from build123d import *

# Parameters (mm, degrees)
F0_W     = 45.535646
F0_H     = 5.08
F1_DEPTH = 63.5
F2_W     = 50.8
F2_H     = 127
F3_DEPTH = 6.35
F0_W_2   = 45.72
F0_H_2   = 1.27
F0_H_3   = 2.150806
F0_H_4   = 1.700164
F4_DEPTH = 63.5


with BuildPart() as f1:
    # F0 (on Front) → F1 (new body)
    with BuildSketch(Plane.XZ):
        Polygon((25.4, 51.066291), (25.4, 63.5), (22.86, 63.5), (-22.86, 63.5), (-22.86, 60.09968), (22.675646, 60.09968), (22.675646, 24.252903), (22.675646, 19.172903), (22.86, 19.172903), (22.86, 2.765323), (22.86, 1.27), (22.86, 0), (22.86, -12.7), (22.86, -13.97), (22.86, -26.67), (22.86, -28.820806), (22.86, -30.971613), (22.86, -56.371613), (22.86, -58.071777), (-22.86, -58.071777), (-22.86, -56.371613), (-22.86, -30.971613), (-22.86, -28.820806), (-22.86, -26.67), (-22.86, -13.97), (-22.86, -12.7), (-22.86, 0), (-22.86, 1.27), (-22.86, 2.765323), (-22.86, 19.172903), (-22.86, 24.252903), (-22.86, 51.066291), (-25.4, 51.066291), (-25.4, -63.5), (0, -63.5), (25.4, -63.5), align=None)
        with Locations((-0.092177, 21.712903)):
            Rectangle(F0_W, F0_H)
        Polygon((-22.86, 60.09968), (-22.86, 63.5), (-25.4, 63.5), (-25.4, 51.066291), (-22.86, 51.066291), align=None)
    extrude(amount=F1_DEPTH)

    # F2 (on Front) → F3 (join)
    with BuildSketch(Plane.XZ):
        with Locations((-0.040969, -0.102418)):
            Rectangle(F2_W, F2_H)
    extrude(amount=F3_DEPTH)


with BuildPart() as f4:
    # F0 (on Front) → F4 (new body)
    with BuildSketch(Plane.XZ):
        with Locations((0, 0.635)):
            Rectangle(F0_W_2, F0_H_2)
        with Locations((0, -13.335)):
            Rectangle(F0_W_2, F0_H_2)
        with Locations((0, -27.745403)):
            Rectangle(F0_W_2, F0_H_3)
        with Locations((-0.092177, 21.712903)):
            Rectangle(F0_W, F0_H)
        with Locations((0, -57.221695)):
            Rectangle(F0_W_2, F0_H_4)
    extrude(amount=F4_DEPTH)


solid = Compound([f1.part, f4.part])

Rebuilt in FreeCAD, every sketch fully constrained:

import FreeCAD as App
import Part
import Sketcher
Q = App.Units.Quantity

doc = App.newDocument("Part")
body = doc.addObject("PartDesign::Body", "Body")

# Sketch on XZ plane
sketch1 = doc.addObject("Sketcher::SketchObject", "Sketch")
body.addObject(sketch1)
sketch1.AttachmentSupport = (doc.XZ_Plane, [""])
sketch1.MapMode = "FlatFace"
sketch1.addGeometry([
    Part.LineSegment(App.Vector(25, 64, 0), App.Vector(-25, 64, 0)),  # 0
    Part.LineSegment(App.Vector(-25, 64, 0), App.Vector(-25, -64, 0)),  # 1
    Part.LineSegment(App.Vector(-25, -64, 0), App.Vector(25, -64, 0)),  # 2
    Part.LineSegment(App.Vector(25, -64, 0), App.Vector(25, 64, 0)),  # 3
    Part.LineSegment(App.Vector(-23, 60, 0), App.Vector(23, 60, 0)),  # 4
    Part.LineSegment(App.Vector(23, 60, 0), App.Vector(23, 24, 0)),  # 5
    Part.LineSegment(App.Vector(23, 24, 0), App.Vector(-23, 24, 0)),  # 6
    Part.LineSegment(App.Vector(-23, 24, 0), App.Vector(-23, 60, 0)),  # 7
    Part.LineSegment(App.Vector(23, 19, 0), App.Vector(23, -58, 0)),  # 8
    Part.LineSegment(App.Vector(23, -58, 0), App.Vector(-23, -58, 0)),  # 9
    Part.LineSegment(App.Vector(-23, -58, 0), App.Vector(-23, 19, 0)),  # 10
    Part.LineSegment(App.Vector(-23, 19, 0), App.Vector(23, 19, 0)),  # 11
], False)
sketch1.addConstraint([
    Sketcher.Constraint("Coincident", 0, 2, 1, 1),
    Sketcher.Constraint("Coincident", 1, 2, 2, 1),
    Sketcher.Constraint("Coincident", 2, 2, 3, 1),
    Sketcher.Constraint("Coincident", 3, 2, 0, 1),
    Sketcher.Constraint("Coincident", 4, 2, 5, 1),
    Sketcher.Constraint("Coincident", 5, 2, 6, 1),
    Sketcher.Constraint("Coincident", 6, 2, 7, 1),
    Sketcher.Constraint("Coincident", 7, 2, 4, 1),
    Sketcher.Constraint("Coincident", 8, 2, 9, 1),
    Sketcher.Constraint("Coincident", 9, 2, 10, 1),
    Sketcher.Constraint("Coincident", 10, 2, 11, 1),
    Sketcher.Constraint("Coincident", 11, 2, 8, 1),
    Sketcher.Constraint("Horizontal", 0),
    Sketcher.Constraint("Vertical", 1),
    Sketcher.Constraint("Horizontal", 2),
    Sketcher.Constraint("Vertical", 3),
    Sketcher.Constraint("Horizontal", 4),
    Sketcher.Constraint("Vertical", 5),
    Sketcher.Constraint("Horizontal", 6),
    Sketcher.Constraint("Vertical", 7),
    Sketcher.Constraint("Vertical", 8),
    Sketcher.Constraint("Horizontal", 9),
    Sketcher.Constraint("Vertical", 10),
    Sketcher.Constraint("Horizontal", 11),
    Sketcher.Constraint("Symmetric", 0, 2, 2, 2, -1, 1),
    Sketcher.Constraint("Vertical", 7, 2, 9, 2),
    Sketcher.Constraint("DistanceX", 0, 2, 0, 1, Q("2 in")),
    Sketcher.Constraint("DistanceY", 1, 2, 1, 1, Q("5 in")),
    Sketcher.Constraint("DistanceX", 9, 2, 9, 1, Q("1.8 in")),
    Sketcher.Constraint("DistanceX", 6, 2, -1, 1, Q("0.9 in")),
    Sketcher.Constraint("DistanceY", 10, 2, 6, 2, Q("0.2 in")),
    Sketcher.Constraint("DistanceY", 8, 2, 8, 1, Q("77.24468 mm")),
    Sketcher.Constraint("DistanceX", 4, 1, 4, 2, Q("45.535646 mm")),
    Sketcher.Constraint("DistanceY", 5, 2, 5, 1, Q("35.846777 mm")),
    Sketcher.Constraint("DistanceY", -1, 1, 4, 2, Q("60.09968 mm")),
])
pad1 = doc.addObject("PartDesign::Pad", "Pad")
body.addObject(pad1)
pad1.Profile = sketch1
pad1.Length = Q("2.5 in")

# Sketch on XZ plane
sketch2 = doc.addObject("Sketcher::SketchObject", "Sketch001")
body.addObject(sketch2)
sketch2.AttachmentSupport = (doc.XZ_Plane, [""])
sketch2.MapMode = "FlatFace"
sketch2.addGeometry([
    Part.LineSegment(App.Vector(-25, 63, 0), App.Vector(-25, -64, 0)),
    Part.LineSegment(App.Vector(-25, -64, 0), App.Vector(25, -64, 0)),
    Part.LineSegment(App.Vector(25, -64, 0), App.Vector(25, 63, 0)),
    Part.LineSegment(App.Vector(25, 63, 0), App.Vector(-25, 63, 0)),
], False)
sketch2.addConstraint([
    Sketcher.Constraint("Coincident", 0, 2, 1, 1),
    Sketcher.Constraint("Coincident", 1, 2, 2, 1),
    Sketcher.Constraint("Coincident", 2, 2, 3, 1),
    Sketcher.Constraint("Coincident", 3, 2, 0, 1),
    Sketcher.Constraint("Vertical", 0),
    Sketcher.Constraint("Horizontal", 1),
    Sketcher.Constraint("Vertical", 2),
    Sketcher.Constraint("Horizontal", 3),
    Sketcher.Constraint("DistanceX", 1, 1, 1, 2, Q("2 in")),
    Sketcher.Constraint("DistanceY", 0, 2, 0, 1, Q("5 in")),
    Sketcher.Constraint("DistanceX", 0, 2, -1, 1, Q("25.440969 mm")),
    Sketcher.Constraint("DistanceY", 0, 2, -1, 1, Q("63.602418 mm")),
])
pad2 = doc.addObject("PartDesign::Pad", "Pad001")
body.addObject(pad2)
pad2.Profile = sketch2
pad2.Length = Q("0.25 in")
body2 = doc.addObject("PartDesign::Body", "Body001")
body2.AllowCompound = True

# Sketch on XZ plane
sketch3 = doc.addObject("Sketcher::SketchObject", "Sketch002")
body2.addObject(sketch3)
sketch3.AttachmentSupport = (doc.getObject("XZ_Plane001"), [""])
sketch3.MapMode = "FlatFace"
sketch3.addGeometry([
    Part.LineSegment(App.Vector(-22.9, 1.3, 0), App.Vector(-22.9, 0, 0)),  # 0
    Part.LineSegment(App.Vector(-22.9, 0, 0), App.Vector(22.9, 0, 0)),  # 1
    Part.LineSegment(App.Vector(22.9, 0, 0), App.Vector(22.9, 1.3, 0)),  # 2
    Part.LineSegment(App.Vector(22.9, 1.3, 0), App.Vector(-22.9, 1.3, 0)),  # 3
    Part.LineSegment(App.Vector(-22.9, -12.7, 0), App.Vector(-22.9, -14, 0)),  # 4
    Part.LineSegment(App.Vector(-22.9, -14, 0), App.Vector(22.9, -14, 0)),  # 5
    Part.LineSegment(App.Vector(22.9, -14, 0), App.Vector(22.9, -12.7, 0)),  # 6
    Part.LineSegment(App.Vector(22.9, -12.7, 0), App.Vector(-22.9, -12.7, 0)),  # 7
    Part.LineSegment(App.Vector(-22.9, -26.7, 0), App.Vector(-22.9, -28.8, 0)),  # 8
    Part.LineSegment(App.Vector(-22.9, -28.8, 0), App.Vector(22.9, -28.8, 0)),  # 9
    Part.LineSegment(App.Vector(22.9, -28.8, 0), App.Vector(22.9, -26.7, 0)),  # 10
    Part.LineSegment(App.Vector(22.9, -26.7, 0), App.Vector(-22.9, -26.7, 0)),  # 11
    Part.LineSegment(App.Vector(-22.9, 24.3, 0), App.Vector(-22.9, 19.2, 0)),  # 12
    Part.LineSegment(App.Vector(-22.9, 19.2, 0), App.Vector(22.7, 19.2, 0)),  # 13
    Part.LineSegment(App.Vector(22.7, 19.2, 0), App.Vector(22.7, 24.3, 0)),  # 14
    Part.LineSegment(App.Vector(22.7, 24.3, 0), App.Vector(-22.9, 24.3, 0)),  # 15
    Part.LineSegment(App.Vector(-22.9, -56.4, 0), App.Vector(-22.9, -58.1, 0)),  # 16
    Part.LineSegment(App.Vector(-22.9, -58.1, 0), App.Vector(22.9, -58.1, 0)),  # 17
    Part.LineSegment(App.Vector(22.9, -58.1, 0), App.Vector(22.9, -56.4, 0)),  # 18
    Part.LineSegment(App.Vector(22.9, -56.4, 0), App.Vector(-22.9, -56.4, 0)),  # 19
], False)
sketch3.addConstraint([
    Sketcher.Constraint("Coincident", 0, 2, 1, 1),
    Sketcher.Constraint("Coincident", 1, 2, 2, 1),
    Sketcher.Constraint("Coincident", 2, 2, 3, 1),
    Sketcher.Constraint("Coincident", 3, 2, 0, 1),
    Sketcher.Constraint("Coincident", 4, 2, 5, 1),
    Sketcher.Constraint("Coincident", 5, 2, 6, 1),
    Sketcher.Constraint("Coincident", 6, 2, 7, 1),
    Sketcher.Constraint("Coincident", 7, 2, 4, 1),
    Sketcher.Constraint("Coincident", 8, 2, 9, 1),
    Sketcher.Constraint("Coincident", 9, 2, 10, 1),
    Sketcher.Constraint("Coincident", 10, 2, 11, 1),
    Sketcher.Constraint("Coincident", 11, 2, 8, 1),
    Sketcher.Constraint("Coincident", 12, 2, 13, 1),
    Sketcher.Constraint("Coincident", 13, 2, 14, 1),
    Sketcher.Constraint("Coincident", 14, 2, 15, 1),
    Sketcher.Constraint("Coincident", 15, 2, 12, 1),
    Sketcher.Constraint("Coincident", 16, 2, 17, 1),
    Sketcher.Constraint("Coincident", 17, 2, 18, 1),
    Sketcher.Constraint("Coincident", 18, 2, 19, 1),
    Sketcher.Constraint("Coincident", 19, 2, 16, 1),
    Sketcher.Constraint("Vertical", 0),
    Sketcher.Constraint("Horizontal", 1),
    Sketcher.Constraint("Vertical", 2),
    Sketcher.Constraint("Horizontal", 3),
    Sketcher.Constraint("Vertical", 4),
    Sketcher.Constraint("Horizontal", 5),
    Sketcher.Constraint("Vertical", 6),
    Sketcher.Constraint("Horizontal", 7),
    Sketcher.Constraint("Vertical", 8),
    Sketcher.Constraint("Horizontal", 9),
    Sketcher.Constraint("Vertical", 10),
    Sketcher.Constraint("Horizontal", 11),
    Sketcher.Constraint("Vertical", 12),
    Sketcher.Constraint("Horizontal", 13),
    Sketcher.Constraint("Vertical", 14),
    Sketcher.Constraint("Horizontal", 15),
    Sketcher.Constraint("Vertical", 16),
    Sketcher.Constraint("Horizontal", 17),
    Sketcher.Constraint("Vertical", 18),
    Sketcher.Constraint("Horizontal", 19),
    Sketcher.Constraint("Symmetric", 0, 2, 1, 2, -1, 1),
    Sketcher.Constraint("Vertical", 3, 2, 4, 2),
    Sketcher.Constraint("Vertical", 2, 2, 5, 2),
    Sketcher.Constraint("Vertical", 7, 2, 8, 2),
    Sketcher.Constraint("Vertical", 6, 2, 9, 2),
    Sketcher.Constraint("Vertical", 11, 2, 12, 2),
    Sketcher.Constraint("Vertical", 15, 2, 16, 2),
    Sketcher.Constraint("Vertical", 10, 2, 17, 2),
    Sketcher.Constraint("Equal", 2, 4),
    Sketcher.Constraint("DistanceX", 1, 1, 1, 2, Q("1.8 in")),
    Sketcher.Constraint("DistanceY", 12, 2, 12, 1, Q("0.2 in")),
    Sketcher.Constraint("DistanceY", 0, 2, 0, 1, Q("0.05 in")),
    Sketcher.Constraint("DistanceY", 6, 2, -1, 1, Q("0.5 in")),
    Sketcher.Constraint("DistanceY", 10, 2, 5, 2, Q("0.5 in")),
    Sketcher.Constraint("DistanceX", 13, 1, 13, 2, Q("45.535646 mm")),
    Sketcher.Constraint("DistanceY", 8, 2, 8, 1, Q("2.150806 mm")),
    Sketcher.Constraint("DistanceY", 16, 2, 16, 1, Q("1.700164 mm")),
    Sketcher.Constraint("DistanceY", 16, 2, 8, 2, Q("29.250971 mm")),
    Sketcher.Constraint("DistanceY", -1, 1, 12, 2, Q("19.172903 mm")),
])
pad3 = doc.addObject("PartDesign::Pad", "Pad002")
body2.addObject(pad3)
pad3.Profile = sketch3
pad3.Length = Q("2.5 in")

doc.recompute()
